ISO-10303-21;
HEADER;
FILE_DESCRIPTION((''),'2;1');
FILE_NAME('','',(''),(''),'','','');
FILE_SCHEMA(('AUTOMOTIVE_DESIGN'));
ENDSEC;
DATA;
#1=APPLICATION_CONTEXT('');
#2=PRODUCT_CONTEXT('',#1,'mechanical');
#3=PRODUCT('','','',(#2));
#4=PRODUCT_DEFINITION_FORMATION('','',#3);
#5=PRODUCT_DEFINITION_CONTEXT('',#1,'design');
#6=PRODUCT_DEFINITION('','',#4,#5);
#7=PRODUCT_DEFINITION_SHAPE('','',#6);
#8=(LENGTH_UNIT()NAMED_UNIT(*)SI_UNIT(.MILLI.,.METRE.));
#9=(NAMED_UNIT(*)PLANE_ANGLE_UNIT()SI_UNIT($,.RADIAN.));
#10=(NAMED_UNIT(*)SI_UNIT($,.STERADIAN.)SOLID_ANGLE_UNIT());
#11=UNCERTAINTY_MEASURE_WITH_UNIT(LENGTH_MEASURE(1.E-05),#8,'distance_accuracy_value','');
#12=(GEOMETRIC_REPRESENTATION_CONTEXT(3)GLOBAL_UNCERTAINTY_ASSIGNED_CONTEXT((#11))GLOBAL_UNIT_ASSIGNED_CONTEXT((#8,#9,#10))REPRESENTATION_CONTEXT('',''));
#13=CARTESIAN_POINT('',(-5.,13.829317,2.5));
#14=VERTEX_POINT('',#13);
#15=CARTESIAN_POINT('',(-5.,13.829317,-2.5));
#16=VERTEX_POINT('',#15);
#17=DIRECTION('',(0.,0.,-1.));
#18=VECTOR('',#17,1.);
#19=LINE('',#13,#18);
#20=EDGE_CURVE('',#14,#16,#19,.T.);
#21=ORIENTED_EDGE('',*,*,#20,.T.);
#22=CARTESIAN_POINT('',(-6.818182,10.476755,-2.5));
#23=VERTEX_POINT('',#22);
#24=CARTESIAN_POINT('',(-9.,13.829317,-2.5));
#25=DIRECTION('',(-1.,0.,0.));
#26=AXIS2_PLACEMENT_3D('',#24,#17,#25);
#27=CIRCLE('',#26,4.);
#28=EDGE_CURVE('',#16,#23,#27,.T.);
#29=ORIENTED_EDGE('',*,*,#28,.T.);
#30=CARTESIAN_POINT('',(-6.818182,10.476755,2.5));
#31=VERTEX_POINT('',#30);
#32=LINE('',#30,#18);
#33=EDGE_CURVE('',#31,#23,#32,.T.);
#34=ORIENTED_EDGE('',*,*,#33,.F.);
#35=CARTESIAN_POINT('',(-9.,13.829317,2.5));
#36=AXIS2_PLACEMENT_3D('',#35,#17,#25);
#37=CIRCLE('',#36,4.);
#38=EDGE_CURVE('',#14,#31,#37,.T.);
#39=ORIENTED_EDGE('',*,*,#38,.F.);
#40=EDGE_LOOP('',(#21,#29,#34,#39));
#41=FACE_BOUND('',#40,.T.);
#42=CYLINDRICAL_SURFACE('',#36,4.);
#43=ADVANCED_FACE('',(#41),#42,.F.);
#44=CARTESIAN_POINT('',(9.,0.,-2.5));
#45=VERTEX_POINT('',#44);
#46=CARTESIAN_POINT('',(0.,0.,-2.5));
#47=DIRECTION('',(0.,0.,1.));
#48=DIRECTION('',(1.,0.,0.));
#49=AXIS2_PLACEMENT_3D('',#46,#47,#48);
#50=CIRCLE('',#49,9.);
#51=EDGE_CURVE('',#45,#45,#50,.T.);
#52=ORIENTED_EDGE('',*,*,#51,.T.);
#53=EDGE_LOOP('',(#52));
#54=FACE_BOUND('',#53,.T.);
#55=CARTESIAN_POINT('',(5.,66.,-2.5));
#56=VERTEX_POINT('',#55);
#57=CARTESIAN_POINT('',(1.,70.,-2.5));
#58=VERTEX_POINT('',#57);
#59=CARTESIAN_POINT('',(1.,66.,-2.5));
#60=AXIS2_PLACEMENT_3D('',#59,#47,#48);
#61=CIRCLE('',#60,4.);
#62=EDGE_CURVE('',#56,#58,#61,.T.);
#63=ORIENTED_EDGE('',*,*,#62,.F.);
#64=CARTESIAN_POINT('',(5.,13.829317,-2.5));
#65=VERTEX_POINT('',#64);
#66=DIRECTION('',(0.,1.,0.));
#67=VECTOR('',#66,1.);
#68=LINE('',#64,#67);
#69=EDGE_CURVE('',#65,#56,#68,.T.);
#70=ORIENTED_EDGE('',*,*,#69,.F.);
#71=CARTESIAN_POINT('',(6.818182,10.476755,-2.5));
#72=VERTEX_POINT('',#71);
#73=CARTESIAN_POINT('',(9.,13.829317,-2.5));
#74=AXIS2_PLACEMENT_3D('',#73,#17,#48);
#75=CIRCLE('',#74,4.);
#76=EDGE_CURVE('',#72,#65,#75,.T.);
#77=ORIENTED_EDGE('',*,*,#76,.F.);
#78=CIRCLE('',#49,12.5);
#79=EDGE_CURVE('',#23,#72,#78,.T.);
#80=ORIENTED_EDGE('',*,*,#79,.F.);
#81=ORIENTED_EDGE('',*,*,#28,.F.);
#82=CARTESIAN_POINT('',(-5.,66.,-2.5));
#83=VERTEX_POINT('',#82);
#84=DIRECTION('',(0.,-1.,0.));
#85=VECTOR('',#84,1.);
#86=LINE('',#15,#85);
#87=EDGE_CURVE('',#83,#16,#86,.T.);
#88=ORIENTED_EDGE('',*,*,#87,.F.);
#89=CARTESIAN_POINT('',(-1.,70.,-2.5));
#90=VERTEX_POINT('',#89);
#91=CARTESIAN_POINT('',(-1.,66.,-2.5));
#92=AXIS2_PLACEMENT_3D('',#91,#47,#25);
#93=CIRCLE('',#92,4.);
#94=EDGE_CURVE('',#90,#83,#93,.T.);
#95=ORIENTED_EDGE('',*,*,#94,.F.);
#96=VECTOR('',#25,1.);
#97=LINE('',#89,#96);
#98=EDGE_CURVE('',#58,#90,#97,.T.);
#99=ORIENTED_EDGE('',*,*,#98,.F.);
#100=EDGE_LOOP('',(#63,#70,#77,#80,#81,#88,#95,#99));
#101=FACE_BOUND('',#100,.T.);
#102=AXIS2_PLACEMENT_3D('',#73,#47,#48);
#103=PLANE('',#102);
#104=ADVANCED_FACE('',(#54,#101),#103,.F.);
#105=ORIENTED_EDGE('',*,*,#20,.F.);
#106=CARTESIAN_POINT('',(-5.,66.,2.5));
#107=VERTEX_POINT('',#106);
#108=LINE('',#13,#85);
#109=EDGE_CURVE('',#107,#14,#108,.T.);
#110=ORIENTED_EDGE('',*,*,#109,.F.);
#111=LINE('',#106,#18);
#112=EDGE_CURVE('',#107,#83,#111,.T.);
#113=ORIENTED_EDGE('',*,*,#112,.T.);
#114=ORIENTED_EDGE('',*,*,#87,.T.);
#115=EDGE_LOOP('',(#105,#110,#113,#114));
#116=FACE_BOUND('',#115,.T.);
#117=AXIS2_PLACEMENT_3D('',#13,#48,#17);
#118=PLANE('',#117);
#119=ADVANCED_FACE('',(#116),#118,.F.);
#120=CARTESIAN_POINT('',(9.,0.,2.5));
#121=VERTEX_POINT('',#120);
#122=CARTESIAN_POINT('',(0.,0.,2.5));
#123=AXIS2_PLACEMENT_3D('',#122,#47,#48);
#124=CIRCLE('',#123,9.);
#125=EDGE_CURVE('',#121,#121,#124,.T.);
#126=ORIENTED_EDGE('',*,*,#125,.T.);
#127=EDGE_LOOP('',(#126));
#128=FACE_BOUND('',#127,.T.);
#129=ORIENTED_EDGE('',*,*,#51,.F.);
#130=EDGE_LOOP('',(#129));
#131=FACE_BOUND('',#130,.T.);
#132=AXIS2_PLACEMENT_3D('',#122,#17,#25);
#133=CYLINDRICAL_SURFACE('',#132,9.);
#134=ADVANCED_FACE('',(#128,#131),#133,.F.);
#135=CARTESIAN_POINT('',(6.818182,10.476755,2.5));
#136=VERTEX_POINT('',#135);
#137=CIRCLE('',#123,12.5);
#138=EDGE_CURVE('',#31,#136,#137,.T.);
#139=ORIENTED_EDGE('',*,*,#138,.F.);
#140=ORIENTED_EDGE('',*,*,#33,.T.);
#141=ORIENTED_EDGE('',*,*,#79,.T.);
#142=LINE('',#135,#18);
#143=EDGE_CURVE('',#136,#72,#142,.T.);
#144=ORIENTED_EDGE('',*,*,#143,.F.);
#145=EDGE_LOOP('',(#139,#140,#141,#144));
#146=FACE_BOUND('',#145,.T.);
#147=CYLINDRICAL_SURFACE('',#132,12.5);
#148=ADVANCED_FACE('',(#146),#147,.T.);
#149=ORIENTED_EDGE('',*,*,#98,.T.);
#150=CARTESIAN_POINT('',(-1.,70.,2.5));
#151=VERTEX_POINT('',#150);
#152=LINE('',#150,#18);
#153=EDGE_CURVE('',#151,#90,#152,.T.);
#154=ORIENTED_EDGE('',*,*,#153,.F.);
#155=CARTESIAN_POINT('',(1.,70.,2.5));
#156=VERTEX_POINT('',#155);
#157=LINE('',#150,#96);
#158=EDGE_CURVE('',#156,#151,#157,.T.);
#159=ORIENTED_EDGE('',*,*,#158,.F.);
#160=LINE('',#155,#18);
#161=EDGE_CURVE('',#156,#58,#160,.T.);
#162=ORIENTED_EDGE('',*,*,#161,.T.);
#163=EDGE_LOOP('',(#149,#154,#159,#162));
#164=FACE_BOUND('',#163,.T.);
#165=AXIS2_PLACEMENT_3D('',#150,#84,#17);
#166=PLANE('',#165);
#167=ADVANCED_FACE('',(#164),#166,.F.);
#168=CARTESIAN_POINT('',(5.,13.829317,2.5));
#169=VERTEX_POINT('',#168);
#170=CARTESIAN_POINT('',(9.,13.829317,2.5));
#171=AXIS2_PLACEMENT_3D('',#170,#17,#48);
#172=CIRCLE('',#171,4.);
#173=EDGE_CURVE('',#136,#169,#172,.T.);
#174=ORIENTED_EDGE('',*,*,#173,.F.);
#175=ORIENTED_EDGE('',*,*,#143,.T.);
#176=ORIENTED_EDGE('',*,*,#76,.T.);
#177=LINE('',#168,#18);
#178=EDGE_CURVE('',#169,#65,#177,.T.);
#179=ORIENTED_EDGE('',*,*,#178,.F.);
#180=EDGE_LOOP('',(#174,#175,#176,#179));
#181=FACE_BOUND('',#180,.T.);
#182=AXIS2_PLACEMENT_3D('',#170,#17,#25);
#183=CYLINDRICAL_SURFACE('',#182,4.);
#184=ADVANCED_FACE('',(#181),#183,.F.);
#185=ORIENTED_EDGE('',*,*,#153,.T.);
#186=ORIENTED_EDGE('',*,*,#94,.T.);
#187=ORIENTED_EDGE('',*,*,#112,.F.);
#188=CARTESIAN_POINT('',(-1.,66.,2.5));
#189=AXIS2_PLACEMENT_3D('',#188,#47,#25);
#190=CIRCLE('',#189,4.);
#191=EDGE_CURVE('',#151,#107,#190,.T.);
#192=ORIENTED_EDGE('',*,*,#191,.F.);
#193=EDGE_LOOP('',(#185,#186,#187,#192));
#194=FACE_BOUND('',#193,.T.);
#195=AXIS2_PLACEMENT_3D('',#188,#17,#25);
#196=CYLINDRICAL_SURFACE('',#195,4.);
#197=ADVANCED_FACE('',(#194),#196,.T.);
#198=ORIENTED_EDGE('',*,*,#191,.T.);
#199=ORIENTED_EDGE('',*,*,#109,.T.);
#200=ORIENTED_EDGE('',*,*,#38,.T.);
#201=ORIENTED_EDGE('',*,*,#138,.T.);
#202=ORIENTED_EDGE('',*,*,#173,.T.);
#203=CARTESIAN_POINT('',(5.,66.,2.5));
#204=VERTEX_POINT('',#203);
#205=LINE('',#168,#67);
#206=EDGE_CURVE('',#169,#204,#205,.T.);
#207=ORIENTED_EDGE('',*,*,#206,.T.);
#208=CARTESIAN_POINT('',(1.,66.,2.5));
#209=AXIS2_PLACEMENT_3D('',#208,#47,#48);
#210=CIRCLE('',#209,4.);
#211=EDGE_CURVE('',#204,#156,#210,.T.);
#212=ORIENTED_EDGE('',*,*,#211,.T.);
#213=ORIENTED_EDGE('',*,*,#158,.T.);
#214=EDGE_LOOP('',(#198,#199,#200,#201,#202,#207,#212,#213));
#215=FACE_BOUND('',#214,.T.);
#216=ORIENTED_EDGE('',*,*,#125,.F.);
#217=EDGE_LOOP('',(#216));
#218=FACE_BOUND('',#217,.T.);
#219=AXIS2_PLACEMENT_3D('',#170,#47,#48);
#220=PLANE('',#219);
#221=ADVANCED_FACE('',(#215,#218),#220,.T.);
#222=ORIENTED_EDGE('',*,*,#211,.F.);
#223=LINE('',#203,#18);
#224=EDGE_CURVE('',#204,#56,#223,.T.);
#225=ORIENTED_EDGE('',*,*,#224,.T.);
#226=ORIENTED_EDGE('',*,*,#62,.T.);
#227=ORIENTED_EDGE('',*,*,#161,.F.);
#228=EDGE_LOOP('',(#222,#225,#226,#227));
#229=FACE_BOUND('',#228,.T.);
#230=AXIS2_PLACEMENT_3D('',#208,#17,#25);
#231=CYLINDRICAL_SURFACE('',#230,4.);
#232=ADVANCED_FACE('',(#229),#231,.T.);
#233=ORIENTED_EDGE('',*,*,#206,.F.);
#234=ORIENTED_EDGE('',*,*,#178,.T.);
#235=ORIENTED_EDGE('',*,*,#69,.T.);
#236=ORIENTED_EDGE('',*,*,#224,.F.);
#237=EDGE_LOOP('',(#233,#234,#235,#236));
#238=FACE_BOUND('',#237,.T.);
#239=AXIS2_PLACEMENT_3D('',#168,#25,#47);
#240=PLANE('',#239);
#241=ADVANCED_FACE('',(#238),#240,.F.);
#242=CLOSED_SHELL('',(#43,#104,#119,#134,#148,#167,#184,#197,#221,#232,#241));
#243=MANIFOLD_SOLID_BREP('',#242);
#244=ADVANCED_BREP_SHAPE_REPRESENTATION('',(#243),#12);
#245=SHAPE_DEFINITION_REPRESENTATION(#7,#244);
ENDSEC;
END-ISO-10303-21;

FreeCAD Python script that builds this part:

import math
import FreeCAD as App
import Part
import Sketcher

doc = App.newDocument("Part")
params = doc.addObject("Spreadsheet::Sheet", "Params")
for row, (alias, value) in enumerate([
    ("sketch1_diameter", "18 mm"),
    ("sketch1_radius", "4 mm"),
    ("sketch1_radius2", "12.5 mm"),
    ("sketch1_width", "2 mm"),
    ("pad1_length", "5 mm"),
], start=1):
    params.set(f"A{row}", alias)
    params.set(f"B{row}", "=" + value)
    params.setAlias(f"B{row}", alias)

body = doc.addObject("PartDesign::Body", "Body")

# Sketch on XY plane
sketch1 = doc.addObject("Sketcher::SketchObject", "Sketch")
body.addObject(sketch1)
sketch1.AttachmentSupport = (doc.XY_Plane, [""])
sketch1.MapMode = "FlatFace"
sketch1.addGeometry([
    Part.LineSegment(App.Vector(-5, 66, 0), App.Vector(-5, 13.829317, 0)),  # 0
    Part.ArcOfCircle(Part.Circle(App.Vector(-9, 13.829317, 0), App.Vector(0, 0, 1), 4), math.radians(-56.944269), math.radians(0)),  # 1
    Part.ArcOfCircle(Part.Circle(App.Vector(0, 0, 0), App.Vector(0, 0, 1), 12.5), math.radians(123.055731), math.radians(416.944269)),  # 2
    Part.ArcOfCircle(Part.Circle(App.Vector(9, 13.829317, 0), App.Vector(0, 0, 1), 4), math.radians(180), math.radians(236.944269)),  # 3
    Part.LineSegment(App.Vector(5, 13.829317, 0), App.Vector(5, 66, 0)),  # 4
    Part.ArcOfCircle(Part.Circle(App.Vector(1, 66, 0), App.Vector(0, 0, 1), 4), math.radians(0), math.radians(90)),  # 5
    Part.LineSegment(App.Vector(1, 70, 0), App.Vector(-1, 70, 0)),  # 6
    Part.ArcOfCircle(Part.Circle(App.Vector(-1, 66, 0), App.Vector(0, 0, 1), 4), math.radians(90), math.radians(180)),  # 7
    Part.Circle(App.Vector(0, 0, 0), App.Vector(0, 0, 1), 9),  # 8
], False)
sketch1.addConstraint([
    Sketcher.Constraint("Tangent", 0, 2, 1, 2),
    Sketcher.Constraint("Tangent", 1, 1, 2, 1),
    Sketcher.Constraint("Tangent", 2, 2, 3, 2),
    Sketcher.Constraint("Tangent", 3, 1, 4, 1),
    Sketcher.Constraint("Tangent", 4, 2, 5, 1),
    Sketcher.Constraint("Tangent", 5, 2, 6, 1),
    Sketcher.Constraint("Tangent", 6, 2, 7, 1),
    Sketcher.Constraint("Tangent", 7, 2, 0, 1),
    Sketcher.Constraint("Vertical", 0),
    Sketcher.Constraint("Vertical", 4),
    Sketcher.Constraint("Horizontal", 6),
    Sketcher.Constraint("Coincident", 2, 3, -1, 1),
    Sketcher.Constraint("Coincident", 8, 3, -1, 1),
    Sketcher.Constraint("Equal", 1, 3),
    Sketcher.Constraint("Equal", 3, 5),
    Sketcher.Constraint("Equal", 5, 7),
    Sketcher.Constraint("Horizontal", 1, 3, 3, 3),
    Sketcher.Constraint("Diameter", 8, 18.0),
    Sketcher.Constraint("Radius", 1, 4.0),
    Sketcher.Constraint("Radius", 2, 12.5),
    Sketcher.Constraint("DistanceX", 6, 2, 6, 1, 2.0),
    Sketcher.Constraint("DistanceY", -1, 1, 5, 3, 66.0),
])
sketch1.setExpression("Constraints[17]", "Params.sketch1_diameter")
sketch1.setExpression("Constraints[18]", "Params.sketch1_radius")
sketch1.setExpression("Constraints[19]", "Params.sketch1_radius2")
sketch1.setExpression("Constraints[20]", "Params.sketch1_width")
pad1 = doc.addObject("PartDesign::Pad", "Pad")
body.addObject(pad1)
pad1.Profile = sketch1
pad1.setExpression("Length", "Params.pad1_length")
pad1.Midplane = True

doc.recompute()
